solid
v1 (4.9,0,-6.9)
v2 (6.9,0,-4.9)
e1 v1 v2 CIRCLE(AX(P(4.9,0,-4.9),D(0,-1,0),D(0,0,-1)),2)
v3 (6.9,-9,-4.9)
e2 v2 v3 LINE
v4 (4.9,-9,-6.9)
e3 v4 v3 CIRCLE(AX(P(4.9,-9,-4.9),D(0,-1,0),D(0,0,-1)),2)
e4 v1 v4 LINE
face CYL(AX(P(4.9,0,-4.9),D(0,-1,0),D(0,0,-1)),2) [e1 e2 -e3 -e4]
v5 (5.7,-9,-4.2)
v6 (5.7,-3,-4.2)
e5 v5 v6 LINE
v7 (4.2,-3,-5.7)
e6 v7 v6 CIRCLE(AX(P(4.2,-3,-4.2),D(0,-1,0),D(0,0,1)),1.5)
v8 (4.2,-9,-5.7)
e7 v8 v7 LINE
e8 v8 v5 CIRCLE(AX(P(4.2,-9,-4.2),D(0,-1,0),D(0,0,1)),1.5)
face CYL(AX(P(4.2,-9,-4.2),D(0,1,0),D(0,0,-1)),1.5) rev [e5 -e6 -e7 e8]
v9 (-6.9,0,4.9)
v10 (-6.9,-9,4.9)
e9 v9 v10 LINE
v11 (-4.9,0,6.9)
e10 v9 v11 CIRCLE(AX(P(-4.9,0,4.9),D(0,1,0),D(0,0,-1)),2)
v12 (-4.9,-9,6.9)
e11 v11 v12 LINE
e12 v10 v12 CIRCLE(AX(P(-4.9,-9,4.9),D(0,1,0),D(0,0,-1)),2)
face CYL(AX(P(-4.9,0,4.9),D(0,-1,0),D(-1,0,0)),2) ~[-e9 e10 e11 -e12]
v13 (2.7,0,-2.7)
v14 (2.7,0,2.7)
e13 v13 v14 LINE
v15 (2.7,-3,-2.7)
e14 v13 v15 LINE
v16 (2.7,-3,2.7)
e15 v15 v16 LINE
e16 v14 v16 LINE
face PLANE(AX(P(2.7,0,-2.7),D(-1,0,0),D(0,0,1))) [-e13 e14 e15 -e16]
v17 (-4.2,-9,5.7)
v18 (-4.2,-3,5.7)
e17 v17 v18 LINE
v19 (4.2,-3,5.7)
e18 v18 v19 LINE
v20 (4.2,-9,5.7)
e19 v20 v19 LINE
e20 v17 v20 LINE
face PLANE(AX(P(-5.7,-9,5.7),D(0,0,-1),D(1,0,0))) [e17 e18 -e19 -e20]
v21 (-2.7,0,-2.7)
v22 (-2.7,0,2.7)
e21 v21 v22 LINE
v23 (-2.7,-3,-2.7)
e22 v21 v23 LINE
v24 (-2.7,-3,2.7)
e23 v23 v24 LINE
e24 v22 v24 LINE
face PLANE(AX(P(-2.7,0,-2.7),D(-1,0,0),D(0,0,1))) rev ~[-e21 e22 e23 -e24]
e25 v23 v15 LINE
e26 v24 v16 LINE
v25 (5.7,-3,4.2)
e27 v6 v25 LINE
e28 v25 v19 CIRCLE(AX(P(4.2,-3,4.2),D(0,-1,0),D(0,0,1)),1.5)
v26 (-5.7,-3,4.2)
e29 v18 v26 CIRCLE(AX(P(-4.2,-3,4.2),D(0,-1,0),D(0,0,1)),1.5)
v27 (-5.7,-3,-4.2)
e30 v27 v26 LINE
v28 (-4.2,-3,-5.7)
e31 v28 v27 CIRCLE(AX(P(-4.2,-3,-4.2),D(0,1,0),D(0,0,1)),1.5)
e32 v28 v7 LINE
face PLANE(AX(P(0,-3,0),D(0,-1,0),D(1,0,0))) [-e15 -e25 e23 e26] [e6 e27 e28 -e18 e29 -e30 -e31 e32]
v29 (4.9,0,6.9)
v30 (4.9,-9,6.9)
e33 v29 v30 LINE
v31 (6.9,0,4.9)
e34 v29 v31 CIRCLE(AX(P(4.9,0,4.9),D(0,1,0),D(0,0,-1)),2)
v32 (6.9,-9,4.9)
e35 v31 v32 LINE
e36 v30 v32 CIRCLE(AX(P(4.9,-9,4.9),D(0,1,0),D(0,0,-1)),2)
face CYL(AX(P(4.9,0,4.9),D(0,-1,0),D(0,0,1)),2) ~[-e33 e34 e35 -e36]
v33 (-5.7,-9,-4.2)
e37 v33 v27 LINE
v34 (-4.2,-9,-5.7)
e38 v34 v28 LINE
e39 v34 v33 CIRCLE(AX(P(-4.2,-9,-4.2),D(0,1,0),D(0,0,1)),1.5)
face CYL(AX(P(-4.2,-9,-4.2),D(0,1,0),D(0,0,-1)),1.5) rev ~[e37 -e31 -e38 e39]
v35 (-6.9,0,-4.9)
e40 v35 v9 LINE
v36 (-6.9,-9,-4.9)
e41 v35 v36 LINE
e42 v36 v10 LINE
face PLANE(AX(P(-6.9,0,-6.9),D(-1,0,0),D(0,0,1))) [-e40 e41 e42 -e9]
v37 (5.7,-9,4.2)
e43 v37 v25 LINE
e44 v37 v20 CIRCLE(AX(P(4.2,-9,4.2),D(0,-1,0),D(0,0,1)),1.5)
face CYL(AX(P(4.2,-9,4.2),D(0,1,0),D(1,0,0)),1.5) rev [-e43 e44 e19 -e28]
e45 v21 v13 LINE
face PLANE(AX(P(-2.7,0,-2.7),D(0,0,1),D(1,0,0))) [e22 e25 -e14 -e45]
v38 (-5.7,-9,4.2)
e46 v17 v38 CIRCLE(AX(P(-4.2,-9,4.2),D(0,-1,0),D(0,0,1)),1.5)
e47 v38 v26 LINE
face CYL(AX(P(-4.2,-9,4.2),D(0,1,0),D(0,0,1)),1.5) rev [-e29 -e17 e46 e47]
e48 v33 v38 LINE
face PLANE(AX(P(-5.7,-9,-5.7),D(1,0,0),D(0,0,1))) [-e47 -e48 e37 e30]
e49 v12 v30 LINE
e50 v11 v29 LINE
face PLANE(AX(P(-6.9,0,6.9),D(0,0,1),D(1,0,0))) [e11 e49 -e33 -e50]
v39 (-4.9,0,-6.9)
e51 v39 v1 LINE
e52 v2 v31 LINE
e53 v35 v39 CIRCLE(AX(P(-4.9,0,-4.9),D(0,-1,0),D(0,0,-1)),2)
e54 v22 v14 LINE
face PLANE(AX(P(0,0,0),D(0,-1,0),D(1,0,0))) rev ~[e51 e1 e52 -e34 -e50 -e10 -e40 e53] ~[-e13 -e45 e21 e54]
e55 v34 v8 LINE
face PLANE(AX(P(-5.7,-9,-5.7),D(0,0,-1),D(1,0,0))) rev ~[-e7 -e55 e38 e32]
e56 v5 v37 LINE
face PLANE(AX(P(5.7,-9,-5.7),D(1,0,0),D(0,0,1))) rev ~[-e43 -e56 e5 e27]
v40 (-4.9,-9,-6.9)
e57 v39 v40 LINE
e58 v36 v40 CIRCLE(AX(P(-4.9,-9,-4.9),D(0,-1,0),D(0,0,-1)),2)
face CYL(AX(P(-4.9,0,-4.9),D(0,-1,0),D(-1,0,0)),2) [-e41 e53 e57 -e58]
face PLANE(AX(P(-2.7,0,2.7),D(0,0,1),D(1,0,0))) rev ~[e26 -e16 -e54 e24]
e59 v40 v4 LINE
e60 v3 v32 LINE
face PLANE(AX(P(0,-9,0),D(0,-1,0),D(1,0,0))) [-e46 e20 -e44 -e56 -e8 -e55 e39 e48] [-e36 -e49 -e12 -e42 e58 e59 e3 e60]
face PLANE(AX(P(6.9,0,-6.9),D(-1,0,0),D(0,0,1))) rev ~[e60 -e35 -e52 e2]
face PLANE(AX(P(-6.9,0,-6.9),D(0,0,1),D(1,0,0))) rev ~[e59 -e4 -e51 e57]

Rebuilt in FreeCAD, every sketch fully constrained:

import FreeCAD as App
import Part
import Sketcher
from FreeCAD import Vector
Q = App.Units.Quantity


def edges_at(feature, points):
    """Names of the edges that pass closest to the given points."""
    edges = feature.Shape.Edges
    near = lambda p: min(range(len(edges)), key=lambda i: edges[i].distToShape(Part.Vertex(*p))[0])
    return sorted({f"Edge{near(p) + 1}" for p in points})

doc = App.newDocument("Part")
body = doc.addObject("PartDesign::Body", "Body")

# Sketch on XZ plane
sketch1 = body.newObject("Sketcher::SketchObject", "Sketch")
sketch1.AttachmentSupport = (doc.getObject("XZ_Plane"), [""])
sketch1.MapMode = "FlatFace"
sketch1.addGeometry([
    Part.LineSegment(Vector(-7, 7, 0), Vector(-7, -7, 0)),
    Part.LineSegment(Vector(-7, -7, 0), Vector(7, -7, 0)),
    Part.LineSegment(Vector(7, -7, 0), Vector(7, 7, 0)),
    Part.LineSegment(Vector(7, 7, 0), Vector(-7, 7, 0)),
], False)
sketch1.addConstraint([
    Sketcher.Constraint("Coincident", 0, 2, 1, 1),
    Sketcher.Constraint("Coincident", 1, 2, 2, 1),
    Sketcher.Constraint("Coincident", 2, 2, 3, 1),
    Sketcher.Constraint("Coincident", 3, 2, 0, 1),
    Sketcher.Constraint("Vertical", 0),
    Sketcher.Constraint("Horizontal", 1),
    Sketcher.Constraint("Vertical", 2),
    Sketcher.Constraint("Horizontal", 3),
    Sketcher.Constraint("Symmetric", 0, 2, 2, 2, -1, 1),
    Sketcher.Constraint("Equal", 3, 0),
    Sketcher.Constraint("DistanceX", 1, 1, 1, 2, Q("13.8 mm")),
])
pad1 = body.newObject("PartDesign::Pad", "Pad")
pad1.Profile = sketch1
pad1.Length = 9

# Sketch on XZ plane
sketch2 = body.newObject("Sketcher::SketchObject", "Sketch001")
sketch2.AttachmentSupport = (doc.getObject("XZ_Plane"), [""])
sketch2.MapMode = "FlatFace"
sketch2.addGeometry([
    Part.LineSegment(Vector(-3, 3, 0), Vector(-3, -3, 0)),
    Part.LineSegment(Vector(-3, -3, 0), Vector(3, -3, 0)),
    Part.LineSegment(Vector(3, -3, 0), Vector(3, 3, 0)),
    Part.LineSegment(Vector(3, 3, 0), Vector(-3, 3, 0)),
], False)
sketch2.addConstraint([
    Sketcher.Constraint("Coincident", 0, 2, 1, 1),
    Sketcher.Constraint("Coincident", 1, 2, 2, 1),
    Sketcher.Constraint("Coincident", 2, 2, 3, 1),
    Sketcher.Constraint("Coincident", 3, 2, 0, 1),
    Sketcher.Constraint("Vertical", 0),
    Sketcher.Constraint("Horizontal", 1),
    Sketcher.Constraint("Vertical", 2),
    Sketcher.Constraint("Horizontal", 3),
    Sketcher.Constraint("Symmetric", 0, 2, 2, 2, -1, 1),
    Sketcher.Constraint("Equal", 3, 0),
    Sketcher.Constraint("DistanceX", 1, 1, 1, 2, Q("5.4 mm")),
])
pocket1 = body.newObject("PartDesign::Pocket", "Pocket")
pocket1.Profile = sketch2
pocket1.Type = "ThroughAll"
pocket1.Reversed = True

# Sketch on XZ plane
sketch3 = body.newObject("Sketcher::SketchObject", "Sketch002")
sketch3.AttachmentSupport = (doc.getObject("XZ_Plane"), [""])
sketch3.MapMode = "FlatFace"
sketch3.AttachmentOffset = App.Placement(Vector(0, 0, 9), App.Rotation())
sketch3.addGeometry([
    Part.LineSegment(Vector(-6, 6, 0), Vector(-6, -6, 0)),
    Part.LineSegment(Vector(-6, -6, 0), Vector(6, -6, 0)),
    Part.LineSegment(Vector(6, -6, 0), Vector(6, 6, 0)),
    Part.LineSegment(Vector(6, 6, 0), Vector(-6, 6, 0)),
], False)
sketch3.addConstraint([
    Sketcher.Constraint("Coincident", 0, 2, 1, 1),
    Sketcher.Constraint("Coincident", 1, 2, 2, 1),
    Sketcher.Constraint("Coincident", 2, 2, 3, 1),
    Sketcher.Constraint("Coincident", 3, 2, 0, 1),
    Sketcher.Constraint("Vertical", 0),
    Sketcher.Constraint("Horizontal", 1),
    Sketcher.Constraint("Vertical", 2),
    Sketcher.Constraint("Horizontal", 3),
    Sketcher.Constraint("Symmetric", 0, 2, 2, 2, -1, 1),
    Sketcher.Constraint("Equal", 3, 0),
    Sketcher.Constraint("DistanceX", 1, 1, 1, 2, Q("11.4 mm")),
])
pocket2 = body.newObject("PartDesign::Pocket", "Pocket001")
pocket2.Profile = sketch3
pocket2.Length = 6
doc.recompute()

fillet = body.newObject("PartDesign::Fillet", "Fillet")
fillet.Base = (pocket2, edges_at(pocket2, [
    (-6.9, -4.5, 6.9),
    (-6.9, -4.5, -6.9),
    (6.9, -4.5, 6.9),
    (6.9, -4.5, -6.9),
]))
fillet.Radius = 2
doc.recompute()

fillet2 = body.newObject("PartDesign::Fillet", "Fillet001")
fillet2.Base = (fillet, edges_at(fillet, [
    (-5.7, -6, 5.7),
    (5.7, -6, 5.7),
    (-5.7, -6, -5.7),
    (5.7, -6, -5.7),
]))
fillet2.Radius = 1.5

doc.recompute()
